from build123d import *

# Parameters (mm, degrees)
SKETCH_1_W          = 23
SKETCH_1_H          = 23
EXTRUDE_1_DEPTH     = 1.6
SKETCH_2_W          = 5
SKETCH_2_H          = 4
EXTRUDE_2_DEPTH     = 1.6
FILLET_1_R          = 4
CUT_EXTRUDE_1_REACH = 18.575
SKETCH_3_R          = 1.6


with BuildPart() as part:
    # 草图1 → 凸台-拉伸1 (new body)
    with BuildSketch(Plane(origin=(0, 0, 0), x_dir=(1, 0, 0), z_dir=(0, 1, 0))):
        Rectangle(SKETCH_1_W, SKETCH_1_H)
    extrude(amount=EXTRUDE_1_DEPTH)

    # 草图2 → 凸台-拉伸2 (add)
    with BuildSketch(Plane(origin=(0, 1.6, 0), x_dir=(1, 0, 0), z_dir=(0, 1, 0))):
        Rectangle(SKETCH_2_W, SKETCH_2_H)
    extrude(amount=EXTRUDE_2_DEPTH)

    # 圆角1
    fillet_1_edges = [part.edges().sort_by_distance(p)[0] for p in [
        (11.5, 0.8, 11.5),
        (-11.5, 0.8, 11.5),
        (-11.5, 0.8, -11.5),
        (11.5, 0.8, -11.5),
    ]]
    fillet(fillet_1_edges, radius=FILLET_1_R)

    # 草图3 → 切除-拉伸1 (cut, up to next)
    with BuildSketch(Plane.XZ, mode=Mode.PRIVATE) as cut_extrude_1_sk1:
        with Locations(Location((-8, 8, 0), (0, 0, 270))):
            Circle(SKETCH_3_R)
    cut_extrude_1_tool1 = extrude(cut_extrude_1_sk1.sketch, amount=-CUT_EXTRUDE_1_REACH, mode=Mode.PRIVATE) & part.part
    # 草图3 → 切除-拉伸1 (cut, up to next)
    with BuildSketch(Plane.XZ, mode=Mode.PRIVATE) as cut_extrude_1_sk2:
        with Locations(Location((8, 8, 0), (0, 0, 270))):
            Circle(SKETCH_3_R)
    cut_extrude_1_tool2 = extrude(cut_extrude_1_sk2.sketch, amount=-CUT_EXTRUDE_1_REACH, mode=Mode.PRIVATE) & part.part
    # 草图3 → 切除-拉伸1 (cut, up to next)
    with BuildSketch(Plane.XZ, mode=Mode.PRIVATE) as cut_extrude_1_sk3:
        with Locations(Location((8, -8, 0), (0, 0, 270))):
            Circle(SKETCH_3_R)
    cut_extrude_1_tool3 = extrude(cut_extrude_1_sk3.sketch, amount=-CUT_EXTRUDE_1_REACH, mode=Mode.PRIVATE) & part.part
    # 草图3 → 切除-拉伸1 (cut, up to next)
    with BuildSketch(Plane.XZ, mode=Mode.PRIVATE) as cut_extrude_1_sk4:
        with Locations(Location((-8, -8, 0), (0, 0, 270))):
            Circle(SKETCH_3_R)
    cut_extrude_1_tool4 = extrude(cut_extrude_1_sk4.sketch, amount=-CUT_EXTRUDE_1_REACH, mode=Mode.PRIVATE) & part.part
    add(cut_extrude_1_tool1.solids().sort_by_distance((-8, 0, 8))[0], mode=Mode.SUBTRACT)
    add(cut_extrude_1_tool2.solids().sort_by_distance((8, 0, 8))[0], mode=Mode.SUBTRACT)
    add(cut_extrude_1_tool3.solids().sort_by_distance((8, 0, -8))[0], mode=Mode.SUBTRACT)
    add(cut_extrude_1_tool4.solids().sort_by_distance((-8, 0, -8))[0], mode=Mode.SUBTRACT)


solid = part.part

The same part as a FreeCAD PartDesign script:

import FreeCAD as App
import Part
import Sketcher

V = App.Vector


def edges_at(feature, points):
    """Names of the edges that pass closest to the given points."""
    edges = feature.Shape.Edges
    near = lambda p: min(range(len(edges)), key=lambda i: edges[i].distToShape(Part.Vertex(*p))[0])
    return sorted({f"Edge{near(p) + 1}" for p in points})


def add_polygon(sketch, points):
    """Adds a closed chain of lines whose ends are joined by coincident constraints."""
    first, n = sketch.GeometryCount, len(points)
    for a, b in zip(points, points[1:] + points[:1]):
        sketch.addGeometry(Part.LineSegment(App.Vector(*a, 0), App.Vector(*b, 0)), False)
    for i in range(n):
        sketch.addConstraint(Sketcher.Constraint("Coincident", first + i, 2, first + (i + 1) % n, 1))

doc = App.newDocument("Part")
body = doc.addObject("PartDesign::Body", "Body")

# Sketch on XZ plane
sketch1 = doc.addObject("Sketcher::SketchObject", "Sketch")
body.addObject(sketch1)
sketch1.AttachmentSupport = (doc.XZ_Plane, [""])
sketch1.MapMode = "FlatFace"
add_polygon(sketch1, [(-12, -12), (-12, 12), (12, 12), (12, -12)])  # lines 0-3
sketch1.addConstraint(Sketcher.Constraint("Vertical", 0))
sketch1.addConstraint(Sketcher.Constraint("Horizontal", 1))
sketch1.addConstraint(Sketcher.Constraint("Vertical", 2))
sketch1.addConstraint(Sketcher.Constraint("Horizontal", 3))
sketch1.addConstraint(Sketcher.Constraint("Symmetric", 0, 2, 2, 2, -1, 1))
sketch1.addConstraint(Sketcher.Constraint("Equal", 3, 0))
sketch1.addConstraint(Sketcher.Constraint("DistanceX", 1, 1, 1, 2, 23.0))
pad1 = doc.addObject("PartDesign::Pad", "Pad")
body.addObject(pad1)
pad1.Profile = sketch1
pad1.Length = 1.6
pad1.Reversed = True

# Sketch on XZ plane
sketch2 = doc.addObject("Sketcher::SketchObject", "Sketch001")
body.addObject(sketch2)
sketch2.AttachmentSupport = (doc.XZ_Plane, [""])
sketch2.MapMode = "FlatFace"
sketch2.AttachmentOffset = App.Placement(V(0, 0, -1.6), App.Rotation())
add_polygon(sketch2, [(-2.5, -2), (-2.5, 2), (2.5, 2), (2.5, -2)])  # lines 0-3
sketch2.addConstraint(Sketcher.Constraint("Vertical", 0))
sketch2.addConstraint(Sketcher.Constraint("Horizontal", 1))
sketch2.addConstraint(Sketcher.Constraint("Vertical", 2))
sketch2.addConstraint(Sketcher.Constraint("Horizontal", 3))
sketch2.addConstraint(Sketcher.Constraint("Symmetric", 0, 2, 2, 2, -1, 1))
sketch2.addConstraint(Sketcher.Constraint("DistanceX", 1, 1, 1, 2, 5.0))
sketch2.addConstraint(Sketcher.Constraint("DistanceY", 0, 1, 0, 2, 4.0))
pad2 = doc.addObject("PartDesign::Pad", "Pad001")
body.addObject(pad2)
pad2.Profile = sketch2
pad2.Length = 1.6
pad2.Reversed = True
doc.recompute()

fillet = doc.addObject("PartDesign::Fillet", "Fillet")
body.addObject(fillet)
fillet.Base = (pad2, edges_at(pad2, [
    (11.5, 0.8, 11.5),
    (-11.5, 0.8, 11.5),
    (-11.5, 0.8, -11.5),
    (11.5, 0.8, -11.5),
]))
fillet.Radius = 4

# Sketch on XZ plane
sketch3 = doc.addObject("Sketcher::SketchObject", "Sketch002")
body.addObject(sketch3)
sketch3.AttachmentSupport = (doc.XZ_Plane, [""])
sketch3.MapMode = "FlatFace"
sketch3.addGeometry(Part.Circle(V(-8, 8, 0), V(0, 0, 1), 1.6), False)
sketch3.addConstraint(Sketcher.Constraint("Diameter", 0, 3.2))
sketch3.addConstraint(Sketcher.Constraint("DistanceX", 0, 3, -1, 1, 8.0))
sketch3.addConstraint(Sketcher.Constraint("DistanceY", -1, 1, 0, 3, 8.0))
pocket1 = doc.addObject("PartDesign::Pocket", "Pocket")
body.addObject(pocket1)
pocket1.Profile = sketch3
pocket1.Type = "UpToFirst"

# Sketch on XZ plane
sketch4 = doc.addObject("Sketcher::SketchObject", "Sketch003")
body.addObject(sketch4)
sketch4.AttachmentSupport = (doc.XZ_Plane, [""])
sketch4.MapMode = "FlatFace"
sketch4.addGeometry(Part.Circle(V(8, 8, 0), V(0, 0, 1), 1.6), False)
sketch4.addConstraint(Sketcher.Constraint("Diameter", 0, 3.2))
sketch4.addConstraint(Sketcher.Constraint("DistanceX", -1, 1, 0, 3, 8.0))
sketch4.addConstraint(Sketcher.Constraint("DistanceY", -1, 1, 0, 3, 8.0))
pocket2 = doc.addObject("PartDesign::Pocket", "Pocket001")
body.addObject(pocket2)
pocket2.Profile = sketch4
pocket2.Type = "UpToFirst"

# Sketch on XZ plane
sketch5 = doc.addObject("Sketcher::SketchObject", "Sketch004")
body.addObject(sketch5)
sketch5.AttachmentSupport = (doc.XZ_Plane, [""])
sketch5.MapMode = "FlatFace"
sketch5.addGeometry(Part.Circle(V(8, -8, 0), V(0, 0, 1), 1.6), False)
sketch5.addConstraint(Sketcher.Constraint("Diameter", 0, 3.2))
sketch5.addConstraint(Sketcher.Constraint("DistanceX", -1, 1, 0, 3, 8.0))
sketch5.addConstraint(Sketcher.Constraint("DistanceY", 0, 3, -1, 1, 8.0))
pocket3 = doc.addObject("PartDesign::Pocket", "Pocket002")
body.addObject(pocket3)
pocket3.Profile = sketch5
pocket3.Type = "UpToFirst"

# Sketch on XZ plane
sketch6 = doc.addObject("Sketcher::SketchObject", "Sketch005")
body.addObject(sketch6)
sketch6.AttachmentSupport = (doc.XZ_Plane, [""])
sketch6.MapMode = "FlatFace"
sketch6.addGeometry(Part.Circle(V(-8, -8, 0), V(0, 0, 1), 1.6), False)
sketch6.addConstraint(Sketcher.Constraint("Diameter", 0, 3.2))
sketch6.addConstraint(Sketcher.Constraint("DistanceX", 0, 3, -1, 1, 8.0))
sketch6.addConstraint(Sketcher.Constraint("DistanceY", 0, 3, -1, 1, 8.0))
pocket4 = doc.addObject("PartDesign::Pocket", "Pocket003")
body.addObject(pocket4)
pocket4.Profile = sketch6
pocket4.Type = "UpToFirst"

doc.recompute()
